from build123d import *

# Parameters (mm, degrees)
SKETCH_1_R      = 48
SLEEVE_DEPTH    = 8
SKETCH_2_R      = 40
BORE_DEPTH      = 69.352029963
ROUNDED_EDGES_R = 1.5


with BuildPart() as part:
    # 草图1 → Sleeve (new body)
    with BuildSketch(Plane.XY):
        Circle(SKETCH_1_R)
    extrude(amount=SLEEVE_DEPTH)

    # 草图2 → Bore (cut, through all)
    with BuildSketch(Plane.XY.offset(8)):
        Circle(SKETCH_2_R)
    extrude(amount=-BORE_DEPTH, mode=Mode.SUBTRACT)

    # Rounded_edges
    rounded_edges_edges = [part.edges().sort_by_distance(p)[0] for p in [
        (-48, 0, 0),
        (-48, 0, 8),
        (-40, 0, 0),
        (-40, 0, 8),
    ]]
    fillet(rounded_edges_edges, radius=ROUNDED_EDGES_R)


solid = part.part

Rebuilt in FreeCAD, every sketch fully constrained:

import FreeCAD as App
import Part
import Sketcher

V = App.Vector


def edges_at(feature, points):
    """Names of the edges that pass closest to the given points."""
    edges = feature.Shape.Edges
    near = lambda p: min(range(len(edges)), key=lambda i: edges[i].distToShape(Part.Vertex(*p))[0])
    return sorted({f"Edge{near(p) + 1}" for p in points})

doc = App.newDocument("Part")
body = doc.addObject("PartDesign::Body", "Body")

# Sketch on XY plane
sketch1 = body.newObject("Sketcher::SketchObject", "Sketch")
sketch1.AttachmentSupport = (doc.getObject("XY_Plane"), [""])
sketch1.MapMode = "FlatFace"
sketch1.addGeometry(Part.Circle(V(0, 0, 0), V(0, 0, 1), 48), False)
sketch1.addConstraint([
    Sketcher.Constraint("Coincident", 0, 3, -1, 1),
    Sketcher.Constraint("Diameter", 0, 96.0),
])
pad1 = body.newObject("PartDesign::Pad", "Pad")
pad1.Profile = sketch1
pad1.Length = 8

# Sketch on XY plane
sketch2 = body.newObject("Sketcher::SketchObject", "Sketch001")
sketch2.AttachmentSupport = (doc.getObject("XY_Plane"), [""])
sketch2.MapMode = "FlatFace"
sketch2.AttachmentOffset = App.Placement(V(0, 0, 8), App.Rotation())
sketch2.addGeometry(Part.Circle(V(0, 0, 0), V(0, 0, 1), 40), False)
sketch2.addConstraint([
    Sketcher.Constraint("Coincident", 0, 3, -1, 1),
    Sketcher.Constraint("Diameter", 0, 80.0),
])
pocket1 = body.newObject("PartDesign::Pocket", "Pocket")
pocket1.Profile = sketch2
pocket1.Type = "ThroughAll"
doc.recompute()

fillet = body.newObject("PartDesign::Fillet", "Fillet")
fillet.Base = (pocket1, edges_at(pocket1, [
    (-48, 0, 0),
    (-48, 0, 8),
    (-40, 0, 0),
    (-40, 0, 8),
]))
fillet.Radius = 1.5

doc.recompute()
